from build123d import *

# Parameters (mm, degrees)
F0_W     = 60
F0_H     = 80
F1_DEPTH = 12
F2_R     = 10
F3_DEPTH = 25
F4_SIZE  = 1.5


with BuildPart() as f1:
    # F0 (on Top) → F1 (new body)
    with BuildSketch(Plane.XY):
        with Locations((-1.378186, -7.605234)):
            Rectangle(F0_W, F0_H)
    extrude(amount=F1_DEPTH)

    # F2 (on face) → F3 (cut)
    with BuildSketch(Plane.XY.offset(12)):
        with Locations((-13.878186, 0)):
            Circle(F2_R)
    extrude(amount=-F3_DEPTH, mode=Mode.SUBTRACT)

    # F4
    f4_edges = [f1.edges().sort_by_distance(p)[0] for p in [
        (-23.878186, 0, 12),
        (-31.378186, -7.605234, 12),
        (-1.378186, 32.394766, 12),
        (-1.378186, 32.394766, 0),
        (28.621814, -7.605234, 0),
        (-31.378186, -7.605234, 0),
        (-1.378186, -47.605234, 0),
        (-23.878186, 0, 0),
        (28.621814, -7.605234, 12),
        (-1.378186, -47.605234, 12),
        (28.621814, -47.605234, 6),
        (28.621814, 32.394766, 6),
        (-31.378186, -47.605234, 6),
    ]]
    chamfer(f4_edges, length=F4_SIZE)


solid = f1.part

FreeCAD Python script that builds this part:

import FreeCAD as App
import Part
import Sketcher


def edges_at(feature, points):
    """Names of the edges that pass closest to the given points."""
    edges = feature.Shape.Edges
    near = lambda p: min(range(len(edges)), key=lambda i: edges[i].distToShape(Part.Vertex(*p))[0])
    return sorted({f"Edge{near(p) + 1}" for p in points})

doc = App.newDocument("Part")
body = doc.addObject("PartDesign::Body", "Body")

sketch1 = doc.addObject("Sketcher::SketchObject", "Sketch")
body.addObject(sketch1)
sketch1.AttachmentSupport = (doc.XY_Plane, [""])
sketch1.MapMode = "FlatFace"
sketch1.addGeometry([
    Part.LineSegment(App.Vector(-31, 32, 0), App.Vector(-31, -48, 0)),
    Part.LineSegment(App.Vector(-31, -48, 0), App.Vector(29, -48, 0)),
    Part.LineSegment(App.Vector(29, -48, 0), App.Vector(29, 32, 0)),
    Part.LineSegment(App.Vector(29, 32, 0), App.Vector(-31, 32, 0)),
], False)
sketch1.addConstraint([
    Sketcher.Constraint("Coincident", 0, 2, 1, 1),
    Sketcher.Constraint("Coincident", 1, 2, 2, 1),
    Sketcher.Constraint("Coincident", 2, 2, 3, 1),
    Sketcher.Constraint("Coincident", 3, 2, 0, 1),
    Sketcher.Constraint("Vertical", 0),
    Sketcher.Constraint("Horizontal", 1),
    Sketcher.Constraint("Vertical", 2),
    Sketcher.Constraint("Horizontal", 3),
    Sketcher.Constraint("DistanceX", 1, 1, 1, 2, 60.0),
    Sketcher.Constraint("DistanceY", 0, 2, 0, 1, 80.0),
    Sketcher.Constraint("DistanceX", 0, 2, -1, 1, 31.378186),
    Sketcher.Constraint("DistanceY", 0, 2, -1, 1, 47.605234),
])
pad1 = doc.addObject("PartDesign::Pad", "Pad")
body.addObject(pad1)
pad1.Profile = sketch1
pad1.Length = 12

sketch2 = doc.addObject("Sketcher::SketchObject", "Sketch001")
body.addObject(sketch2)
sketch2.AttachmentSupport = (doc.XY_Plane, [""])
sketch2.MapMode = "FlatFace"
sketch2.AttachmentOffset = App.Placement(App.Vector(0, 0, 12), App.Rotation())
sketch2.addGeometry(Part.Circle(App.Vector(-14, 0, 0), App.Vector(0, 0, 1), 10), False)
sketch2.addConstraint([
    Sketcher.Constraint("PointOnObject", 0, 3, -1),
    Sketcher.Constraint("Diameter", 0, 20.0),
    Sketcher.Constraint("DistanceX", 0, 3, -1, 1, 13.878186),
])
pocket1 = doc.addObject("PartDesign::Pocket", "Pocket")
body.addObject(pocket1)
pocket1.Profile = sketch2
pocket1.Length = 25
doc.recompute()

chamfer = doc.addObject("PartDesign::Chamfer", "Chamfer")
body.addObject(chamfer)
chamfer.Base = (pocket1, edges_at(pocket1, [
    (-23.878, 0, 12),
    (-31.378, -7.605, 12),
    (-1.378, 32.395, 12),
    (-1.378, 32.395, 0),
    (28.622, -7.605, 0),
    (-31.378, -7.605, 0),
    (-1.378, -47.605, 0),
    (-23.878, 0, 0),
    (28.622, -7.605, 12),
    (-1.378, -47.605, 12),
    (28.622, -47.605, 6),
    (28.622, 32.395, 6),
    (-31.378, -47.605, 6),
]))
chamfer.Size = 1.5

doc.recompute()
